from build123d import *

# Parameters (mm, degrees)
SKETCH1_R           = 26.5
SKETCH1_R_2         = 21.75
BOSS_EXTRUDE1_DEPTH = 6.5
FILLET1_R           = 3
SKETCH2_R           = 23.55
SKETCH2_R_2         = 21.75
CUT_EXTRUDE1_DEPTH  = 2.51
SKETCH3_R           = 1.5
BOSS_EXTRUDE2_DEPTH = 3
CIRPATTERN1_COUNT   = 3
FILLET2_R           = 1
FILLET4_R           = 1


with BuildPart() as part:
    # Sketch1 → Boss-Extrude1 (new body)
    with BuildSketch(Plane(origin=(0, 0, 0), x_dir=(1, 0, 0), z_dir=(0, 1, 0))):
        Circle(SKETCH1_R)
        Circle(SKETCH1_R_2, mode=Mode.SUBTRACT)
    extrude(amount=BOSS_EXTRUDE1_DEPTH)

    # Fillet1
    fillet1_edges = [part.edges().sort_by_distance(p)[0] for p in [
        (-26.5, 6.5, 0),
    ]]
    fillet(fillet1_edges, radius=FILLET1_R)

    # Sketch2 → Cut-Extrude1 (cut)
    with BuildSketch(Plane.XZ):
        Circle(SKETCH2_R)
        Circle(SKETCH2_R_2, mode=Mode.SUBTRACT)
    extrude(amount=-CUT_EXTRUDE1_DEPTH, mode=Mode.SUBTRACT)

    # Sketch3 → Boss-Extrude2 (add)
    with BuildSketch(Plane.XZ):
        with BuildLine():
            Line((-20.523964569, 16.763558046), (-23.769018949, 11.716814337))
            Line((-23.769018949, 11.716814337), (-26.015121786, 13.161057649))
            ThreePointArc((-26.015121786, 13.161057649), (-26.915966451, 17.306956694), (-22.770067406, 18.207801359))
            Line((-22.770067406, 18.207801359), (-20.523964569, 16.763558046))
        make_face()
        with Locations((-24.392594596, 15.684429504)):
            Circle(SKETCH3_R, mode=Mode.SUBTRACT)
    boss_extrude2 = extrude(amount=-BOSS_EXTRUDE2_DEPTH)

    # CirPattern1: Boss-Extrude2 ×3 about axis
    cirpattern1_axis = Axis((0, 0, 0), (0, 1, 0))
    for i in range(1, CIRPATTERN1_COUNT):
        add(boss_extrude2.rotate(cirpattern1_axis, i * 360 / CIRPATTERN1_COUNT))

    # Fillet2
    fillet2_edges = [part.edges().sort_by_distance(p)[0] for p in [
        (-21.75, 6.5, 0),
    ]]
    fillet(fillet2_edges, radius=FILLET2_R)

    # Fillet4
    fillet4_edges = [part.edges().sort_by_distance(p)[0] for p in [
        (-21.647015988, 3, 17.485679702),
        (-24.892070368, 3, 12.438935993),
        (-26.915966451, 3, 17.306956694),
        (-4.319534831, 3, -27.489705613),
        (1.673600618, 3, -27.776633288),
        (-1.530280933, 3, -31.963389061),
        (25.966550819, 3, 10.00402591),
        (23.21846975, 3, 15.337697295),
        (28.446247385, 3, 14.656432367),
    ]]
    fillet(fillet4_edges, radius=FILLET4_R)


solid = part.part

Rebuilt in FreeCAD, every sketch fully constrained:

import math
import FreeCAD as App
import Part
import Sketcher

V = App.Vector


def edges_at(feature, points):
    """Names of the edges that pass closest to the given points."""
    edges = feature.Shape.Edges
    near = lambda p: min(range(len(edges)), key=lambda i: edges[i].distToShape(Part.Vertex(*p))[0])
    return sorted({f"Edge{near(p) + 1}" for p in points})

doc = App.newDocument("Part")
body = doc.addObject("PartDesign::Body", "Body")

# Sketch on XZ plane
sketch1 = doc.addObject("Sketcher::SketchObject", "Sketch")
body.addObject(sketch1)
sketch1.AttachmentSupport = (doc.XZ_Plane, [""])
sketch1.MapMode = "FlatFace"
sketch1.addGeometry([
    Part.Circle(V(0, 0, 0), V(0, 0, 1), 26.5),
    Part.Circle(V(0, 0, 0), V(0, 0, 1), 21.75),
], False)
sketch1.addConstraint([
    Sketcher.Constraint("Coincident", 0, 3, -1, 1),
    Sketcher.Constraint("Coincident", 1, 3, -1, 1),
    Sketcher.Constraint("Diameter", 0, 53.0),
    Sketcher.Constraint("Diameter", 1, 43.5),
])
pad1 = doc.addObject("PartDesign::Pad", "Pad")
body.addObject(pad1)
pad1.Profile = sketch1
pad1.Length = 6.5
pad1.Reversed = True
doc.recompute()

fillet = doc.addObject("PartDesign::Fillet", "Fillet")
body.addObject(fillet)
fillet.Base = (pad1, edges_at(pad1, [(-26.5, 6.5, 0)]))
fillet.Radius = 3

# Sketch on XZ plane
sketch2 = doc.addObject("Sketcher::SketchObject", "Sketch001")
body.addObject(sketch2)
sketch2.AttachmentSupport = (doc.XZ_Plane, [""])
sketch2.MapMode = "FlatFace"
sketch2.addGeometry([
    Part.Circle(V(0, 0, 0), V(0, 0, 1), 23.55),
    Part.Circle(V(0, 0, 0), V(0, 0, 1), 21.75),
], False)
sketch2.addConstraint([
    Sketcher.Constraint("Coincident", 0, 3, -1, 1),
    Sketcher.Constraint("Coincident", 1, 3, -1, 1),
    Sketcher.Constraint("Diameter", 0, 47.1),
    Sketcher.Constraint("Diameter", 1, 43.5),
])
pocket1 = doc.addObject("PartDesign::Pocket", "Pocket")
body.addObject(pocket1)
pocket1.Profile = sketch2
pocket1.Length = 2.51

# Sketch on XZ plane
sketch3 = doc.addObject("Sketcher::SketchObject", "Sketch002")
body.addObject(sketch3)
sketch3.AttachmentSupport = (doc.XZ_Plane, [""])
sketch3.MapMode = "FlatFace"
sketch3.addGeometry([
    Part.LineSegment(V(-23.769019, 11.716814, 0), V(-20.523965, 16.763558, 0)),  # 0
    Part.LineSegment(V(-20.523965, 16.763558, 0), V(-22.770067, 18.207801, 0)),  # 1
    Part.ArcOfCircle(Part.Circle(V(-24.392595, 15.68443, 0), V(0, 0, 1), 3), math.radians(57.258997), math.radians(237.258997)),  # 2
    Part.LineSegment(V(-26.015122, 13.161058, 0), V(-23.769019, 11.716814, 0)),  # 3
    Part.Circle(V(-24.392595, 15.68443, 0), V(0, 0, 1), 1.5),  # 4
], False)
sketch3.addConstraint([
    Sketcher.Constraint("Coincident", 0, 2, 1, 1),
    Sketcher.Constraint("Tangent", 1, 2, 2, 1),
    Sketcher.Constraint("Tangent", 2, 2, 3, 1),
    Sketcher.Constraint("Coincident", 3, 2, 0, 1),
    Sketcher.Constraint("Coincident", 4, 3, 2, 3),
    Sketcher.Constraint("Perpendicular", 0, 1),
    Sketcher.Constraint("Parallel", 1, 3),
    Sketcher.Constraint("Diameter", 4, 3.0),
    Sketcher.Constraint("Radius", 2, 3.0),
    Sketcher.Constraint("DistanceY", -1, 1, 1, 2, 18.207801),
    Sketcher.Constraint("DistanceY", 2, 2, 0, 2, 3.6025),
    Sketcher.Constraint("Distance", 1, 2.670359),
    Sketcher.Constraint("DistanceX", 2, 2, -1, 1, 26.015122),
])
pad2 = doc.addObject("PartDesign::Pad", "Pad001")
body.addObject(pad2)
pad2.Profile = sketch3
pad2.Length = 3
pad2.Reversed = True
doc.recompute()

polarpattern = doc.addObject("PartDesign::PolarPattern", "PolarPattern")
body.addObject(polarpattern)
polarpattern.Originals = [pad2]
polarpattern.Axis = (doc.Y_Axis, [""])
polarpattern.Angle = 360
polarpattern.Occurrences = 3
body.Tip = polarpattern
doc.recompute()

fillet2 = doc.addObject("PartDesign::Fillet", "Fillet001")
body.addObject(fillet2)
fillet2.Base = (polarpattern, edges_at(polarpattern, [(-21.75, 6.5, 0)]))
fillet2.Radius = 1
doc.recompute()

fillet3 = doc.addObject("PartDesign::Fillet", "Fillet002")
body.addObject(fillet3)
fillet3.Base = (fillet2, edges_at(fillet2, [
    (-21.647, 3, 17.486),
    (-24.892, 3, 12.439),
    (-26.916, 3, 17.307),
    (-4.32, 3, -27.49),
    (1.674, 3, -27.777),
    (-1.53, 3, -31.963),
    (25.967, 3, 10.004),
    (23.218, 3, 15.338),
    (28.446, 3, 14.656),
]))
fillet3.Radius = 1

doc.recompute()
